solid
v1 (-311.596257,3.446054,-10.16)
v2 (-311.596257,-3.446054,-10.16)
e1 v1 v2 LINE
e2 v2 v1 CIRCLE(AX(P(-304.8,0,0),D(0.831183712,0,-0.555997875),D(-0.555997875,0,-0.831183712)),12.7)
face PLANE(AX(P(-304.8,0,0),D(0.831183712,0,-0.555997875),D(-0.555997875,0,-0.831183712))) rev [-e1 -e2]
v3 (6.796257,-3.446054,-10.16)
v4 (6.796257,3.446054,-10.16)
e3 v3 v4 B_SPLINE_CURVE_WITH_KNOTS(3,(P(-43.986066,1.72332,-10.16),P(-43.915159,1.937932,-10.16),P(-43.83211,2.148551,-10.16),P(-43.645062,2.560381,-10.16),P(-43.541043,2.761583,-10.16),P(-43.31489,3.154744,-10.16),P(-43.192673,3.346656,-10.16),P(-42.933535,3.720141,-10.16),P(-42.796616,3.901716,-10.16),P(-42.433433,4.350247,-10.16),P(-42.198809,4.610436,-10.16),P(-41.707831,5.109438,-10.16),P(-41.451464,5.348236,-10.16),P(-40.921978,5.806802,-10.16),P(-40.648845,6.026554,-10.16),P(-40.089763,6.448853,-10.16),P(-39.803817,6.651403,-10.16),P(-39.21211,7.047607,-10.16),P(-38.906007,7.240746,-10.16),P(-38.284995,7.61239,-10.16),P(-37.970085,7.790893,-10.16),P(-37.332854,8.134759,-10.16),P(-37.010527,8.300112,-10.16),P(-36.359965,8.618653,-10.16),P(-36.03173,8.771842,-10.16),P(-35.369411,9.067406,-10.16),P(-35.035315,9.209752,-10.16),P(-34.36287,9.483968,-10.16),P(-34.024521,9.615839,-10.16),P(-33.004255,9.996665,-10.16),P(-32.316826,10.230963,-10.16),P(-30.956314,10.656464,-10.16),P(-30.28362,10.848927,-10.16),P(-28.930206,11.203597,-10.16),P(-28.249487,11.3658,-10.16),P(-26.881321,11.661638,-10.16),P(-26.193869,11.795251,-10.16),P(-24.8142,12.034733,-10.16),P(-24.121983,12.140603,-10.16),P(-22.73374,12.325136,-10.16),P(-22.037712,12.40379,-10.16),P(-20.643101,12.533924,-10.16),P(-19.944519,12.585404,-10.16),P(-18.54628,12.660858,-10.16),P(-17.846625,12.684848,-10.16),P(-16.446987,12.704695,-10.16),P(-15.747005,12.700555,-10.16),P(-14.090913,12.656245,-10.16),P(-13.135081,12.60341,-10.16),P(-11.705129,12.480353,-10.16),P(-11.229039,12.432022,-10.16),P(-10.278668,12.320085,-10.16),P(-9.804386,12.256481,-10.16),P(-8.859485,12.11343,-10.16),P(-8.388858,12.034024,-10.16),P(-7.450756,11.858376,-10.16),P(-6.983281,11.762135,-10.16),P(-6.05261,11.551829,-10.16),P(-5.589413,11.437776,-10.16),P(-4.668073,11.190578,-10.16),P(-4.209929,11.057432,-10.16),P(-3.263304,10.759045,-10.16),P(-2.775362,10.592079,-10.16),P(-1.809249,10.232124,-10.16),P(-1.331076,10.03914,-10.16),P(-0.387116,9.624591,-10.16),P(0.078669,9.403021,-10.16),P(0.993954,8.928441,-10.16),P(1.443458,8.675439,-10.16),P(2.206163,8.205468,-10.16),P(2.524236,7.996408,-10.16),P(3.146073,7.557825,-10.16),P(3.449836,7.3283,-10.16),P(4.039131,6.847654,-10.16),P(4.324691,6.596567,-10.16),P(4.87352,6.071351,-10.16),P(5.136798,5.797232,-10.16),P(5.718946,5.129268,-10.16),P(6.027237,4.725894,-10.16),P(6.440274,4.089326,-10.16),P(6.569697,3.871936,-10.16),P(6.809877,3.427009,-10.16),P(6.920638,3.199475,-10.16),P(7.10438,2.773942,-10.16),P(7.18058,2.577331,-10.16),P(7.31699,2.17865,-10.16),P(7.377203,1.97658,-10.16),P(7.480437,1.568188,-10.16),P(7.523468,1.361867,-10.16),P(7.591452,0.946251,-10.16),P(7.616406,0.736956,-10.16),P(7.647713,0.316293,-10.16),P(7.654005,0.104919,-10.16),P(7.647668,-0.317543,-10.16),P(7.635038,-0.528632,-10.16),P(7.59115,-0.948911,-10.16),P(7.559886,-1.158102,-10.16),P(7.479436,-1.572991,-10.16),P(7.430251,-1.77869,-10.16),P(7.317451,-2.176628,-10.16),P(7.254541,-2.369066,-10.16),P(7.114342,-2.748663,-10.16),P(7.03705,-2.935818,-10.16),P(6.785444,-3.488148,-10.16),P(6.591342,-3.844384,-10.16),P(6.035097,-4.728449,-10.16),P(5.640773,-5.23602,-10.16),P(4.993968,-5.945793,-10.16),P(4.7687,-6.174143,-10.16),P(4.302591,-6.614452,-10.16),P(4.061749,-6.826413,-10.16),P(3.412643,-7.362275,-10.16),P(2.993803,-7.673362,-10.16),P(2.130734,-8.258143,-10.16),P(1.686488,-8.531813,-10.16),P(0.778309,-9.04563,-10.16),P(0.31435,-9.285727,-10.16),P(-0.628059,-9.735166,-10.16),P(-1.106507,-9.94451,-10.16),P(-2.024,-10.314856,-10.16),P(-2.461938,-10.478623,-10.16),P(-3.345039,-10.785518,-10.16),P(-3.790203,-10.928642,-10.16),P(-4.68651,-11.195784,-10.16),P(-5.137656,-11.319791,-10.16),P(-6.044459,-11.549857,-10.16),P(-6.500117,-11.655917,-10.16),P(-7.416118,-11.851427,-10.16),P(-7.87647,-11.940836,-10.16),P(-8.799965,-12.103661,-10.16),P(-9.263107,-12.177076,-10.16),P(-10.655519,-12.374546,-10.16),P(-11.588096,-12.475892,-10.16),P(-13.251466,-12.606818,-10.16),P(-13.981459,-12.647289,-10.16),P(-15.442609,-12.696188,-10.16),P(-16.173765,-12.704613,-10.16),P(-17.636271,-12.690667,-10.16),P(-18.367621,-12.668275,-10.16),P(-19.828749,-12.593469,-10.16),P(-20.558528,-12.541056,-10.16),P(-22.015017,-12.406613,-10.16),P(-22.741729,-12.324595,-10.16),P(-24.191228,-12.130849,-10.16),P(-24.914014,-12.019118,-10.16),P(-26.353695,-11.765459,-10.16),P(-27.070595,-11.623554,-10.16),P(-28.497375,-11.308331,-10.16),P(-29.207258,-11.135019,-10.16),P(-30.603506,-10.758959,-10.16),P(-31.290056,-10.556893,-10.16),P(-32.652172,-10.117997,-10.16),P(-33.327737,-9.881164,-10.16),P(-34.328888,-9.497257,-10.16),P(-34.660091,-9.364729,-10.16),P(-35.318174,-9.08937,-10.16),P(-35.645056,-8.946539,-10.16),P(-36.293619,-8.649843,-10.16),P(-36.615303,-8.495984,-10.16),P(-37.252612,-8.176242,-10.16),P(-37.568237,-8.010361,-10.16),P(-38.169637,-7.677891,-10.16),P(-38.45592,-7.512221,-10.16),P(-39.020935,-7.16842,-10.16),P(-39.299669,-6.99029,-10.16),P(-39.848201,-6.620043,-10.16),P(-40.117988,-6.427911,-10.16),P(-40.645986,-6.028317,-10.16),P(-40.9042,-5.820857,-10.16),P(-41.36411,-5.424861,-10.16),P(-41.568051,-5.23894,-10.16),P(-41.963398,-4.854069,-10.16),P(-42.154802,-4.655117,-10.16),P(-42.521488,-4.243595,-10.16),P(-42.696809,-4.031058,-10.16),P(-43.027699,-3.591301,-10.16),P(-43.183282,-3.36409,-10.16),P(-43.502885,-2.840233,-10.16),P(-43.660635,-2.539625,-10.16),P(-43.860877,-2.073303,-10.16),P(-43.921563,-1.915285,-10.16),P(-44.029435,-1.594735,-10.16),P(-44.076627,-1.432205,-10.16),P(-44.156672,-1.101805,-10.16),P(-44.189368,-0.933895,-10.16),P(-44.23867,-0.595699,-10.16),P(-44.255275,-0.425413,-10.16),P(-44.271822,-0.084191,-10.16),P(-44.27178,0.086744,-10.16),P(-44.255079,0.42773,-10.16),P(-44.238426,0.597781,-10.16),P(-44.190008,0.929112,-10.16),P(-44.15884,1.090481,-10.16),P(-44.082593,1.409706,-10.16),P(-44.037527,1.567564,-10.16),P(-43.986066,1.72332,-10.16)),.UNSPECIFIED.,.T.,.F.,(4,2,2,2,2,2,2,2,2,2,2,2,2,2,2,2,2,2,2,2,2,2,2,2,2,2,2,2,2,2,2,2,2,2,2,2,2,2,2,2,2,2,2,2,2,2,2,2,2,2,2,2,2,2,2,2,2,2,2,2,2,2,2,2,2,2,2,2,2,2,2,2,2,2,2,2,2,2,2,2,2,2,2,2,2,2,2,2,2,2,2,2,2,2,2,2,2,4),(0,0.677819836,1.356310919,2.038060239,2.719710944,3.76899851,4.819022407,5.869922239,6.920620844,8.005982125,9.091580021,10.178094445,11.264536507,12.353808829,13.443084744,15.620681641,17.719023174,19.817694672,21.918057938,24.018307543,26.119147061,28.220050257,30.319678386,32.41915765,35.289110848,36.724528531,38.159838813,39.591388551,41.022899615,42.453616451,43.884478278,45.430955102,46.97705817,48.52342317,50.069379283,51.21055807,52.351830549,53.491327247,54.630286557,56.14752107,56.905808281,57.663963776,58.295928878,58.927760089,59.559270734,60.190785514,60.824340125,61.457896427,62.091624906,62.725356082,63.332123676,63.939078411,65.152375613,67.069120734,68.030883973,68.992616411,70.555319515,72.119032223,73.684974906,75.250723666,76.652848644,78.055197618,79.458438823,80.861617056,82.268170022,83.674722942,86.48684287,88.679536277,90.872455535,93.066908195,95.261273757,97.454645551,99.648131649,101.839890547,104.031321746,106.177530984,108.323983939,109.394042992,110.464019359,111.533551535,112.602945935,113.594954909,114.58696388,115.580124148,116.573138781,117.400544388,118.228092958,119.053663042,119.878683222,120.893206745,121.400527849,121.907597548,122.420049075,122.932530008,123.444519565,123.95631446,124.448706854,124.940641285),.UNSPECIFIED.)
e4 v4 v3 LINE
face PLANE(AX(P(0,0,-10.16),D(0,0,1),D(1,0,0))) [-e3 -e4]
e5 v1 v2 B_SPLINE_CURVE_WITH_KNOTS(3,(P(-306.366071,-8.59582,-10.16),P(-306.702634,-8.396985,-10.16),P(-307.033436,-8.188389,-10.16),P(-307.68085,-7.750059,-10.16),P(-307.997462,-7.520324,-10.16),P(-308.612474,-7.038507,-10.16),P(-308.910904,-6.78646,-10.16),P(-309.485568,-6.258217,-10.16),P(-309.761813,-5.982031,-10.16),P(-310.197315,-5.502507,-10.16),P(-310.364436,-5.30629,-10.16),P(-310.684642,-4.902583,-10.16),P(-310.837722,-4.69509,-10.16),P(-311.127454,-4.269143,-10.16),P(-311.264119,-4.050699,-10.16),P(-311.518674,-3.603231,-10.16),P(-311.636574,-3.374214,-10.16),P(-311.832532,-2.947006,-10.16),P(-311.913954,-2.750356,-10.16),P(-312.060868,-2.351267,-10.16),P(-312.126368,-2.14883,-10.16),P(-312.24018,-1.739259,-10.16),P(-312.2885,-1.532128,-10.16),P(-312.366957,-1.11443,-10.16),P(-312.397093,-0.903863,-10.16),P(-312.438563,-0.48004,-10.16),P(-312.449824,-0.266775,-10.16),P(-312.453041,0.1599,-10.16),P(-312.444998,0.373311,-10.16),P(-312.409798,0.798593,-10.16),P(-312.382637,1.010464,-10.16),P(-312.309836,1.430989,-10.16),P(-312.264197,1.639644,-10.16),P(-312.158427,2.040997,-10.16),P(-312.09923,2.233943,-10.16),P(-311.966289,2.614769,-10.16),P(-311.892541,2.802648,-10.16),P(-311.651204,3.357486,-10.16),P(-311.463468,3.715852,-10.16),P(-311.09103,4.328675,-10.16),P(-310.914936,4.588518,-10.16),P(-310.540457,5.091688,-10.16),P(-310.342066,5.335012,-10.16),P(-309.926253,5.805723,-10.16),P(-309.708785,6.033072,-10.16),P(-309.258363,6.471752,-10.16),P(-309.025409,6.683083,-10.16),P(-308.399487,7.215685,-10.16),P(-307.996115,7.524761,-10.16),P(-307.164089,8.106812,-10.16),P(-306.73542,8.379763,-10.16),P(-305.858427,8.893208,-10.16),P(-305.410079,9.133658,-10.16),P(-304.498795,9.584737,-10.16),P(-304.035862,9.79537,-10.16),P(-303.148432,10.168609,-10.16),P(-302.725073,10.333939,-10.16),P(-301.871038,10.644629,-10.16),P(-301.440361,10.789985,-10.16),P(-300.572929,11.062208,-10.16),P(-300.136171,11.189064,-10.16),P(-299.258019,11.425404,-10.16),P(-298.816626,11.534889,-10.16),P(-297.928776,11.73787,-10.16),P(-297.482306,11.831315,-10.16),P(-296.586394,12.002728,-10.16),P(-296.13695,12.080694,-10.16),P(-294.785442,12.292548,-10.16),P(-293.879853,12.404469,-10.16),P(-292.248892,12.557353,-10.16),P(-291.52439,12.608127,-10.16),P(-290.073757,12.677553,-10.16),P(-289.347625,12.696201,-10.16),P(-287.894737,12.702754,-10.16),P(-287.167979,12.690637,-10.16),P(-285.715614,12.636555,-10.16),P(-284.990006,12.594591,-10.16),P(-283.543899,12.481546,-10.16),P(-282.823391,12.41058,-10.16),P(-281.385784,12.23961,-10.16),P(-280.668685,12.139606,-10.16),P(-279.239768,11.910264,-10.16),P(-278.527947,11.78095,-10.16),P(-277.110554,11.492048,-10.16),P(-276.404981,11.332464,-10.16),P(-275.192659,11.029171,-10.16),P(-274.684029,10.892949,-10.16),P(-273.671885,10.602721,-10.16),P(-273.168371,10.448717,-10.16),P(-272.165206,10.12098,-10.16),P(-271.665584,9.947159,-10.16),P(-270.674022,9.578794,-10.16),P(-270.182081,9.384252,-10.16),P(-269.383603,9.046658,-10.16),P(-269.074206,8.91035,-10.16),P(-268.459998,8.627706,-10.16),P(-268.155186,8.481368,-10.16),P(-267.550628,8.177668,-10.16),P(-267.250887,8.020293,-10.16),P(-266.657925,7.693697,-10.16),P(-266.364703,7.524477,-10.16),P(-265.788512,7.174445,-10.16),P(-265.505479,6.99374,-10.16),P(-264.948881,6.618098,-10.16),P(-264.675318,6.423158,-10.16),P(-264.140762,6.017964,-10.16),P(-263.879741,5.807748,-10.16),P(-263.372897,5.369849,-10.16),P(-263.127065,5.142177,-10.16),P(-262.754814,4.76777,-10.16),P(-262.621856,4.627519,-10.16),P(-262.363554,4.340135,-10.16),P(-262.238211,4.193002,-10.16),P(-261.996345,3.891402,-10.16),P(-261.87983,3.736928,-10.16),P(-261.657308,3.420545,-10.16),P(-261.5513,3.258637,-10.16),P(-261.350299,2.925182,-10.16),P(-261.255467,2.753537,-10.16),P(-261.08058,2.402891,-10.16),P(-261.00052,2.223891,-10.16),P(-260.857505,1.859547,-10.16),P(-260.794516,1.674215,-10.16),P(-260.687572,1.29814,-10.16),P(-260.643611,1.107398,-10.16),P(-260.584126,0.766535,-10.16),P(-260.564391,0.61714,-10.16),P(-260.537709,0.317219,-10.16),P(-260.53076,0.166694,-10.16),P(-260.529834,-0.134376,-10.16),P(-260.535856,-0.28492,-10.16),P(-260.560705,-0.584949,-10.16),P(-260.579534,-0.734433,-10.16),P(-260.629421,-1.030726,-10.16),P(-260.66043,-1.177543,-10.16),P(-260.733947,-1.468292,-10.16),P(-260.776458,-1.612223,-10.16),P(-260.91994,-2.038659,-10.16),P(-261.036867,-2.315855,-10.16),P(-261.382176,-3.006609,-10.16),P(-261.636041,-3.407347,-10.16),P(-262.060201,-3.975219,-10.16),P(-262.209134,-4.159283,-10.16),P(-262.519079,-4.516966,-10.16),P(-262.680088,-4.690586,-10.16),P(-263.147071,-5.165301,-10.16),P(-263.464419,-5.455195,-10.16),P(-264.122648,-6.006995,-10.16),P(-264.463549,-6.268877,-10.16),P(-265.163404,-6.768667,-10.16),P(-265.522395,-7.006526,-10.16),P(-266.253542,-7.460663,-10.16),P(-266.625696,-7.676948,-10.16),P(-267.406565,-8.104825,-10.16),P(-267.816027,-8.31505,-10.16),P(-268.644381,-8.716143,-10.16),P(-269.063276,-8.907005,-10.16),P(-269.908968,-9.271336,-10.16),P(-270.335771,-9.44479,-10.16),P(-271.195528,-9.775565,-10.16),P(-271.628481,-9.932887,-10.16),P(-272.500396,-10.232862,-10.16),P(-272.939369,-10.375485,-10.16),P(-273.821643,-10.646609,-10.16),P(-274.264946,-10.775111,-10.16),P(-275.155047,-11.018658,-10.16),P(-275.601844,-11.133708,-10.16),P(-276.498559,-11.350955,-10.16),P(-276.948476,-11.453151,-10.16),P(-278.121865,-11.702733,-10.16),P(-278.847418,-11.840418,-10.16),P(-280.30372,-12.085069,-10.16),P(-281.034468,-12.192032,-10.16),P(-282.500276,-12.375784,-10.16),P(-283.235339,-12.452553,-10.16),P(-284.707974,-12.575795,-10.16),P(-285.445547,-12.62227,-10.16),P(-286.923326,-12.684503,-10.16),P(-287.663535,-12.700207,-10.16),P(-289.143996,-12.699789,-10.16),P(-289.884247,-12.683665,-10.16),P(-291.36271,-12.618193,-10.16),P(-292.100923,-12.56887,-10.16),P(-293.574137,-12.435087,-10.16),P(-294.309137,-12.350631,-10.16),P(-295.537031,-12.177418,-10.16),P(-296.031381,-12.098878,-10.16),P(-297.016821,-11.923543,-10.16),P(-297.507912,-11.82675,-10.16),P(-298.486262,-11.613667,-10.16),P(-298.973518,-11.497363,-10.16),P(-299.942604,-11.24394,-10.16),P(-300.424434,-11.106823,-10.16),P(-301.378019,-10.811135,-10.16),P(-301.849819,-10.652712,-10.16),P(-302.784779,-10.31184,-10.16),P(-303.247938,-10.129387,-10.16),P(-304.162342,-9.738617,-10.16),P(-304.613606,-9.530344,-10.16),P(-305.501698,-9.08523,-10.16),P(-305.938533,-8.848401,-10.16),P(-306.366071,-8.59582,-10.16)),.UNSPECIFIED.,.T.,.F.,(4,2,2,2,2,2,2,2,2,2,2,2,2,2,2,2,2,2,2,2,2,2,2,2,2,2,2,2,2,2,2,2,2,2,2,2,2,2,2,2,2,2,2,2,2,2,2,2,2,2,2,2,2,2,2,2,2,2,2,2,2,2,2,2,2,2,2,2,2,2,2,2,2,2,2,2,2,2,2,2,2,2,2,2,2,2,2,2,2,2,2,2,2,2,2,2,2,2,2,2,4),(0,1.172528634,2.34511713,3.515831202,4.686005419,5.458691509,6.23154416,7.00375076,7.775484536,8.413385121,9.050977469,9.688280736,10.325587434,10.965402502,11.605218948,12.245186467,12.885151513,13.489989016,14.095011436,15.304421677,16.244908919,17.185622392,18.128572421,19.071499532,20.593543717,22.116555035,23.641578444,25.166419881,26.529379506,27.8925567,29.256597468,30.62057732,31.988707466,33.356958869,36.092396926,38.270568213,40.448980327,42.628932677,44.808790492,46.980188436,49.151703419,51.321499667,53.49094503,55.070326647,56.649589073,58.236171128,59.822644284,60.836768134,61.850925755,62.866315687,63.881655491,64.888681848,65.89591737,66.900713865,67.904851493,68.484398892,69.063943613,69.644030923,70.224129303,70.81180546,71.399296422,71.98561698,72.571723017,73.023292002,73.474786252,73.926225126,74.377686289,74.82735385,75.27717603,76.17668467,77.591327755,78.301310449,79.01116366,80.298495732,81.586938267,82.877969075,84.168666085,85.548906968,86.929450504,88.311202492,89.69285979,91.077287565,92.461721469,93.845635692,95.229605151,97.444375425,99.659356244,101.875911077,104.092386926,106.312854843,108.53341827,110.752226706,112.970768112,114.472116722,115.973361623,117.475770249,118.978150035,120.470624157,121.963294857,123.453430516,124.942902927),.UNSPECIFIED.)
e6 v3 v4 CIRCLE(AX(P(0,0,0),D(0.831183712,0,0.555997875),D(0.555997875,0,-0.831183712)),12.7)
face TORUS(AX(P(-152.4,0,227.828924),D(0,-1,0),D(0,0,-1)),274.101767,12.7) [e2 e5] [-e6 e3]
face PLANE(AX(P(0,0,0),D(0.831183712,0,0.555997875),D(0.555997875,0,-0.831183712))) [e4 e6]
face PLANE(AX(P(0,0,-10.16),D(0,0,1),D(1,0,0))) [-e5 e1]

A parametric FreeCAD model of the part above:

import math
import FreeCAD as App
import Part
import Sketcher
Q = App.Units.Quantity

doc = App.newDocument("Part")
params = doc.addObject("Spreadsheet::Sheet", "Params")
for row, (alias, value) in enumerate([
    ("sketch1_diameter", "1 in"),
    ("pocket1_length", "2.33 in"),
    ("pocket1_length2", "0.4 in"),
], start=1):
    params.set(f"A{row}", alias)
    params.set(f"B{row}", "=" + value)
    params.setAlias(f"B{row}", alias)

body = doc.addObject("PartDesign::Body", "Body")

sketch1 = body.newObject("Sketcher::SketchObject", "Sketch")
sketch1.Placement = App.Placement(App.Vector(0, 0, 0), App.Rotation(App.Vector(0.555997875, 0, -0.831183712), App.Vector(0, 1, 0), App.Vector(0.831183712, 0, 0.555997875), "ZXY"))
sketch1.addGeometry(Part.Circle(App.Vector(0, 0, 0), App.Vector(0, 0, 1), 13), False)
sketch1.addConstraint(Sketcher.Constraint("Coincident", 0, 3, -1, 1))
sketch1.addConstraint(Sketcher.Constraint("Diameter", 0, Q("1 in")))
sketch1.setExpression("Constraints[1]", "Params.sketch1_diameter")

sketch2 = body.newObject("Sketcher::SketchObject", "Sketch001")
sketch2.AttachmentSupport = (doc.getObject("XZ_Plane"), [""])
sketch2.MapMode = "FlatFace"
sketch2.addGeometry(Part.ArcOfCircle(Part.Circle(App.Vector(-152, 228, 0), App.Vector(0, 0, 1), 274), math.radians(-124), math.radians(-56)), False)
sketch2.addConstraint(Sketcher.Constraint("Coincident", 0, 2, -1, 1))
sketch2.addConstraint(Sketcher.Constraint("PointOnObject", 0, 1, -1))
sketch2.addConstraint(Sketcher.Constraint("DistanceX", 0, 3, -1, 1, Q("6 in")))
sketch2.addConstraint(Sketcher.Constraint("Radius", 0, 274.101767))
doc.recompute()

additivepipe = body.newObject("PartDesign::AdditivePipe", "AdditivePipe")
additivepipe.Profile = sketch1
additivepipe.Spine = (sketch2, ["Edge1"])

sketch3 = body.newObject("Sketcher::SketchObject", "Sketch002")
sketch3.AttachmentSupport = (doc.getObject("XY_Plane"), [""])
sketch3.MapMode = "FlatFace"
sketch3.addGeometry(Part.LineSegment(App.Vector(-380, 119, 0), App.Vector(-380, -119, 0)), False)
sketch3.addGeometry(Part.LineSegment(App.Vector(-380, -119, 0), App.Vector(53, -119, 0)), False)
sketch3.addGeometry(Part.LineSegment(App.Vector(53, -119, 0), App.Vector(53, 119, 0)), False)
sketch3.addGeometry(Part.LineSegment(App.Vector(53, 119, 0), App.Vector(-380, 119, 0)), False)
sketch3.addConstraint(Sketcher.Constraint("Coincident", 0, 2, 1, 1))
sketch3.addConstraint(Sketcher.Constraint("Coincident", 1, 2, 2, 1))
sketch3.addConstraint(Sketcher.Constraint("Coincident", 2, 2, 3, 1))
sketch3.addConstraint(Sketcher.Constraint("Coincident", 3, 2, 0, 1))
sketch3.addConstraint(Sketcher.Constraint("Vertical", 0))
sketch3.addConstraint(Sketcher.Constraint("Horizontal", 1))
sketch3.addConstraint(Sketcher.Constraint("Vertical", 2))
sketch3.addConstraint(Sketcher.Constraint("Horizontal", 3))
sketch3.addConstraint(Sketcher.Constraint("DistanceX", 1, 1, 1, 2, 432.66437))
sketch3.addConstraint(Sketcher.Constraint("DistanceY", 0, 2, 0, 1, 238.427735))
sketch3.addConstraint(Sketcher.Constraint("DistanceX", 0, 2, -1, 1, 379.725464))
sketch3.addConstraint(Sketcher.Constraint("DistanceY", 0, 2, -1, 1, 119.213868))
pocket1 = body.newObject("PartDesign::Pocket", "Pocket")
pocket1.Profile = sketch3
pocket1.Type = "TwoLengths"
pocket1.setExpression("Length", "Params.pocket1_length")
pocket1.setExpression("Length2", "Params.pocket1_length2")
pocket1.Reversed = True

doc.recompute()
